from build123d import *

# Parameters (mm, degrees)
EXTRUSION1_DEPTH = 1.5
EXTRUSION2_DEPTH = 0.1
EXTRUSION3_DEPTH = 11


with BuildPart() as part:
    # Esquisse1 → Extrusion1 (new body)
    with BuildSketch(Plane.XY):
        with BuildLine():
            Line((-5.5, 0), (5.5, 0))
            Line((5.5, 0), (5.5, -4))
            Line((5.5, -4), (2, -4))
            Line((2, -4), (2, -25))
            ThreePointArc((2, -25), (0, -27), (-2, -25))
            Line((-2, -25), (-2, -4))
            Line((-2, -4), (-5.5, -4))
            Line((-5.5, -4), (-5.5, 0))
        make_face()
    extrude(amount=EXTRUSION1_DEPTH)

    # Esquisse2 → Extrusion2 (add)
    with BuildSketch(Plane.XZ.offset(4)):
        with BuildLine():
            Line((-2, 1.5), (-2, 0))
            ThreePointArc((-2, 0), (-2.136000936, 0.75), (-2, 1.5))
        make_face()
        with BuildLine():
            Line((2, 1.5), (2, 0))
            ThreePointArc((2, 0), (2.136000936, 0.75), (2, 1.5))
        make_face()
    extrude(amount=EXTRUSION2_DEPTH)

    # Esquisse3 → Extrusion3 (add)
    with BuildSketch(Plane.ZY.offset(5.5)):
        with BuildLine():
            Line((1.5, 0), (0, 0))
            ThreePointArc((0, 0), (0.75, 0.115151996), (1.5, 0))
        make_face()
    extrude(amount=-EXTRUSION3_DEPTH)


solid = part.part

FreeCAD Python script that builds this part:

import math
import FreeCAD as App
import Part
import Sketcher

V = App.Vector

doc = App.newDocument("Part")
params = doc.addObject("Spreadsheet::Sheet", "Params")
for row, (alias, value) in enumerate([
    ("sketch1_radius", "2 mm"),
    ("sketch1_width", "11 mm"),
    ("sketch1_height", "4 mm"),
    ("sketch1_height2", "21 mm"),
    ("pad1_length", "1.5 mm"),
    ("sketch2_height", "1.5 mm"),
    ("pad2_length", "0.1 mm"),
    ("sketch3_radius", "2.5 mm"),
    ("sketch3_height", "1.5 mm"),
    ("pad3_length", "11 mm"),
], start=1):
    params.set(f"A{row}", alias)
    params.set(f"B{row}", "=" + value)
    params.setAlias(f"B{row}", alias)

body = doc.addObject("PartDesign::Body", "Body")

sketch1 = body.newObject("Sketcher::SketchObject", "Sketch")
sketch1.AttachmentSupport = (doc.getObject("XY_Plane"), [""])
sketch1.MapMode = "FlatFace"
sketch1.addGeometry(Part.LineSegment(V(5.5, 0, 0), V(-5.5, 0, 0)), False)
sketch1.addGeometry(Part.LineSegment(V(-5.5, 0, 0), V(-5.5, -4, 0)), False)
sketch1.addGeometry(Part.LineSegment(V(-5.5, -4, 0), V(-2, -4, 0)), False)
sketch1.addGeometry(Part.LineSegment(V(-2, -4, 0), V(-2, -25, 0)), False)
sketch1.addGeometry(Part.ArcOfCircle(Part.Circle(V(0, -25, 0), V(0, 0, 1), 2), math.radians(180), math.radians(360)), False)
sketch1.addGeometry(Part.LineSegment(V(2, -25, 0), V(2, -4, 0)), False)
sketch1.addGeometry(Part.LineSegment(V(2, -4, 0), V(5.5, -4, 0)), False)
sketch1.addGeometry(Part.LineSegment(V(5.5, -4, 0), V(5.5, 0, 0)), False)
sketch1.addConstraint(Sketcher.Constraint("Coincident", 0, 2, 1, 1))
sketch1.addConstraint(Sketcher.Constraint("Coincident", 1, 2, 2, 1))
sketch1.addConstraint(Sketcher.Constraint("Coincident", 2, 2, 3, 1))
sketch1.addConstraint(Sketcher.Constraint("Tangent", 3, 2, 4, 1))
sketch1.addConstraint(Sketcher.Constraint("Tangent", 4, 2, 5, 1))
sketch1.addConstraint(Sketcher.Constraint("Coincident", 5, 2, 6, 1))
sketch1.addConstraint(Sketcher.Constraint("Coincident", 6, 2, 7, 1))
sketch1.addConstraint(Sketcher.Constraint("Coincident", 7, 2, 0, 1))
sketch1.addConstraint(Sketcher.Constraint("Horizontal", 0))
sketch1.addConstraint(Sketcher.Constraint("Vertical", 1))
sketch1.addConstraint(Sketcher.Constraint("Horizontal", 2))
sketch1.addConstraint(Sketcher.Constraint("Vertical", 3))
sketch1.addConstraint(Sketcher.Constraint("Vertical", 5))
sketch1.addConstraint(Sketcher.Constraint("Horizontal", 6))
sketch1.addConstraint(Sketcher.Constraint("Vertical", 7))
sketch1.addConstraint(Sketcher.Constraint("Symmetric", 0, 2, 7, 2, -1, 1))
sketch1.addConstraint(Sketcher.Constraint("Symmetric", 2, 2, 5, 2, -2))
sketch1.addConstraint(Sketcher.Constraint("Radius", 4, 2.0))
sketch1.addConstraint(Sketcher.Constraint("DistanceX", 0, 2, 0, 1, 11.0))
sketch1.addConstraint(Sketcher.Constraint("DistanceY", 1, 2, 1, 1, 4.0))
sketch1.addConstraint(Sketcher.Constraint("DistanceY", 3, 2, 3, 1, 21.0))
sketch1.setExpression("Constraints[17]", "Params.sketch1_radius")
sketch1.setExpression("Constraints[18]", "Params.sketch1_width")
sketch1.setExpression("Constraints[19]", "Params.sketch1_height")
sketch1.setExpression("Constraints[20]", "Params.sketch1_height2")
pad1 = body.newObject("PartDesign::Pad", "Pad")
pad1.Profile = sketch1
pad1.setExpression("Length", "Params.pad1_length")

sketch2 = body.newObject("Sketcher::SketchObject", "Sketch001")
sketch2.AttachmentSupport = (doc.getObject("XZ_Plane"), [""])
sketch2.MapMode = "FlatFace"
sketch2.AttachmentOffset = App.Placement(V(0, 0, 4), App.Rotation())
sketch2.addGeometry(Part.LineSegment(V(-2, 0, 0), V(-2, 1.5, 0)), False)
sketch2.addGeometry(Part.ArcOfCircle(Part.Circle(V(0, 0.8, 0), V(0, 0, 1), 2.1), math.radians(159), math.radians(201)), False)
sketch2.addGeometry(Part.LineSegment(V(2, 1.5, 0), V(2, 0, 0)), False)
sketch2.addGeometry(Part.ArcOfCircle(Part.Circle(V(0, 0.8, 0), V(0, 0, 1), 2.1), math.radians(-21), math.radians(21)), False)
sketch2.addConstraint(Sketcher.Constraint("Coincident", 0, 1, 1, 2))
sketch2.addConstraint(Sketcher.Constraint("Coincident", 1, 1, 0, 2))
sketch2.addConstraint(Sketcher.Constraint("Coincident", 2, 1, 3, 2))
sketch2.addConstraint(Sketcher.Constraint("Coincident", 3, 1, 2, 2))
sketch2.addConstraint(Sketcher.Constraint("Vertical", 0))
sketch2.addConstraint(Sketcher.Constraint("Vertical", 2))
sketch2.addConstraint(Sketcher.Constraint("Coincident", 3, 3, 1, 3))
sketch2.addConstraint(Sketcher.Constraint("Equal", 1, 3))
sketch2.addConstraint(Sketcher.Constraint("Symmetric", 0, 1, 3, 1, -1, 1))
sketch2.addConstraint(Sketcher.Constraint("PointOnObject", 1, 3, -2))
sketch2.addConstraint(Sketcher.Constraint("DistanceY", 0, 1, 0, 2, 1.5))
sketch2.addConstraint(Sketcher.Constraint("DistanceX", 0, 1, -1, 1, 2.0))
sketch2.setExpression("Constraints[10]", "Params.sketch2_height")
pad2 = body.newObject("PartDesign::Pad", "Pad001")
pad2.Profile = sketch2
pad2.setExpression("Length", "Params.pad2_length")

sketch3 = body.newObject("Sketcher::SketchObject", "Sketch002")
sketch3.AttachmentSupport = (doc.getObject("YZ_Plane"), [""])
sketch3.MapMode = "FlatFace"
sketch3.AttachmentOffset = App.Placement(V(0, 0, -5.5), App.Rotation())
sketch3.addGeometry(Part.LineSegment(V(0, 0, 0), V(0, 1.5, 0)), False)
sketch3.addGeometry(Part.ArcOfCircle(Part.Circle(V(-2.4, 0.8, 0), V(0, 0, 1), 2.5), math.radians(-17), math.radians(17)), False)
sketch3.addConstraint(Sketcher.Constraint("Coincident", 0, 1, 1, 1))
sketch3.addConstraint(Sketcher.Constraint("Coincident", 1, 2, 0, 2))
sketch3.addConstraint(Sketcher.Constraint("Vertical", 0))
sketch3.addConstraint(Sketcher.Constraint("Coincident", 0, 1, -1, 1))
sketch3.addConstraint(Sketcher.Constraint("Radius", 1, 2.5))
sketch3.addConstraint(Sketcher.Constraint("DistanceY", 0, 1, 0, 2, 1.5))
sketch3.setExpression("Constraints[4]", "Params.sketch3_radius")
sketch3.setExpression("Constraints[5]", "Params.sketch3_height")
pad3 = body.newObject("PartDesign::Pad", "Pad002")
pad3.Profile = sketch3
pad3.setExpression("Length", "Params.pad3_length")

doc.recompute()
